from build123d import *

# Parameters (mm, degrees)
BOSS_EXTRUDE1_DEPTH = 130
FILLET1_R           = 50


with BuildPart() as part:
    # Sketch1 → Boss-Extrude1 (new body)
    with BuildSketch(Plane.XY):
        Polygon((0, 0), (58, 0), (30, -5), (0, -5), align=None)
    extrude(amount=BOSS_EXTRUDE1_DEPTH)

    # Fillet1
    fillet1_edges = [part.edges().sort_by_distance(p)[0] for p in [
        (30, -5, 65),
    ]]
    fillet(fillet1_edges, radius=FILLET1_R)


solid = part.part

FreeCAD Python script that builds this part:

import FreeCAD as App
import Part
import Sketcher


def edges_at(feature, points):
    """Names of the edges that pass closest to the given points."""
    edges = feature.Shape.Edges
    near = lambda p: min(range(len(edges)), key=lambda i: edges[i].distToShape(Part.Vertex(*p))[0])
    return sorted({f"Edge{near(p) + 1}" for p in points})


def add_polygon(sketch, points):
    """Adds a closed chain of lines whose ends are joined by coincident constraints."""
    first, n = sketch.GeometryCount, len(points)
    for a, b in zip(points, points[1:] + points[:1]):
        sketch.addGeometry(Part.LineSegment(App.Vector(*a, 0), App.Vector(*b, 0)), False)
    for i in range(n):
        sketch.addConstraint(Sketcher.Constraint("Coincident", first + i, 2, first + (i + 1) % n, 1))

doc = App.newDocument("Part")
body = doc.addObject("PartDesign::Body", "Body")

# Sketch on XY plane
sketch1 = body.newObject("Sketcher::SketchObject", "Sketch")
sketch1.AttachmentSupport = (doc.getObject("XY_Plane"), [""])
sketch1.MapMode = "FlatFace"
add_polygon(sketch1, [(58, 0), (0, 0), (0, -5), (30, -5)])  # lines 0-3
sketch1.addConstraint([
    Sketcher.Constraint("Horizontal", 0),
    Sketcher.Constraint("Vertical", 1),
    Sketcher.Constraint("Horizontal", 2),
    Sketcher.Constraint("Coincident", 0, 2, -1, 1),
    Sketcher.Constraint("DistanceX", 0, 2, 0, 1, 58.0),
    Sketcher.Constraint("DistanceX", 2, 1, 2, 2, 30.0),
    Sketcher.Constraint("DistanceY", 1, 2, 1, 1, 5.0),
])
pad1 = body.newObject("PartDesign::Pad", "Pad")
pad1.Profile = sketch1
pad1.Length = 130
doc.recompute()

fillet = body.newObject("PartDesign::Fillet", "Fillet")
fillet.Base = (pad1, edges_at(pad1, [(30, -5, 65)]))
fillet.Radius = 50

doc.recompute()
